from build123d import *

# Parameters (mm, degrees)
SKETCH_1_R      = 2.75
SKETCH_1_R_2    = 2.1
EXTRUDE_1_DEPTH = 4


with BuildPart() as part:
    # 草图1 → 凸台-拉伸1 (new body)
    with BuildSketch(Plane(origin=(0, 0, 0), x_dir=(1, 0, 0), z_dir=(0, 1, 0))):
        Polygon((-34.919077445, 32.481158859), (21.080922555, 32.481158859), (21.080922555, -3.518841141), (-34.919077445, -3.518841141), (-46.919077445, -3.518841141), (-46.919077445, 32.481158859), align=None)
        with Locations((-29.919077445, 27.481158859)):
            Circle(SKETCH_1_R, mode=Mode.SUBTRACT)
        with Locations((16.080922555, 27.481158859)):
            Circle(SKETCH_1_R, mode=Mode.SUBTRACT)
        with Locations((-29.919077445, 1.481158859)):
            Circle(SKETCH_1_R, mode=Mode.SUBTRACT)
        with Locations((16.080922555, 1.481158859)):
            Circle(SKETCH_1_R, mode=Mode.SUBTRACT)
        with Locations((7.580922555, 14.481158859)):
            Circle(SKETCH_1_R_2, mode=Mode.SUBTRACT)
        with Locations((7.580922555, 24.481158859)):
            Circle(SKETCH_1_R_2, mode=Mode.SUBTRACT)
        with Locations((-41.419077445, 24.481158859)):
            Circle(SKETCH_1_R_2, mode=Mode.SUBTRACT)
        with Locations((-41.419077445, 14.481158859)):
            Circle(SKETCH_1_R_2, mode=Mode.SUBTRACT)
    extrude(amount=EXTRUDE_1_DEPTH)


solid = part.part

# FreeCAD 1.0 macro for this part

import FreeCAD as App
import Part
import Sketcher
from FreeCAD import Vector
Q = App.Units.Quantity


def add_polygon(sketch, points):
    """Adds a closed chain of lines whose ends are joined by coincident constraints."""
    first, n = sketch.GeometryCount, len(points)
    for a, b in zip(points, points[1:] + points[:1]):
        sketch.addGeometry(Part.LineSegment(App.Vector(*a, 0), App.Vector(*b, 0)), False)
    for i in range(n):
        sketch.addConstraint(Sketcher.Constraint("Coincident", first + i, 2, first + (i + 1) % n, 1))

doc = App.newDocument("Part")
body = doc.addObject("PartDesign::Body", "Body")

# Sketch on XZ plane
sketch1 = doc.addObject("Sketcher::SketchObject", "Sketch")
body.addObject(sketch1)
sketch1.AttachmentSupport = (doc.XZ_Plane, [""])
sketch1.MapMode = "FlatFace"
add_polygon(sketch1, [(21.080923, -32.481159), (-46.919077, -32.481159), (-46.919077, 3.518841), (21.080923, 3.518841)])  # lines 0-3
sketch1.addGeometry(Part.Circle(Vector(16.080923, -1.481159, 0), Vector(0, 0, 1), 2.75), False)  # 4
sketch1.addGeometry(Part.Circle(Vector(-29.919077, -1.481159, 0), Vector(0, 0, 1), 2.75), False)  # 5
sketch1.addGeometry(Part.Circle(Vector(7.580923, -14.481159, 0), Vector(0, 0, 1), 2.1), False)  # 6
sketch1.addGeometry(Part.Circle(Vector(7.580923, -24.481159, 0), Vector(0, 0, 1), 2.1), False)  # 7
sketch1.addGeometry(Part.Circle(Vector(16.080923, -27.481159, 0), Vector(0, 0, 1), 2.75), False)  # 8
sketch1.addGeometry(Part.Circle(Vector(-41.419077, -14.481159, 0), Vector(0, 0, 1), 2.1), False)  # 9
sketch1.addGeometry(Part.Circle(Vector(-41.419077, -24.481159, 0), Vector(0, 0, 1), 2.1), False)  # 10
sketch1.addGeometry(Part.Circle(Vector(-29.919077, -27.481159, 0), Vector(0, 0, 1), 2.75), False)  # 11
sketch1.addConstraint([
    Sketcher.Constraint("Horizontal", 0),
    Sketcher.Constraint("Vertical", 1),
    Sketcher.Constraint("Horizontal", 2),
    Sketcher.Constraint("Vertical", 3),
    Sketcher.Constraint("Equal", 4, 5),
    Sketcher.Constraint("Equal", 6, 7),
    Sketcher.Constraint("Equal", 5, 8),
    Sketcher.Constraint("Equal", 7, 9),
    Sketcher.Constraint("Equal", 9, 10),
    Sketcher.Constraint("Equal", 8, 11),
    Sketcher.Constraint("Horizontal", 4, 3, 5, 3),
    Sketcher.Constraint("Horizontal", 6, 3, 9, 3),
    Sketcher.Constraint("Horizontal", 7, 3, 10, 3),
    Sketcher.Constraint("Horizontal", 8, 3, 11, 3),
    Sketcher.Constraint("Vertical", 6, 3, 7, 3),
    Sketcher.Constraint("Vertical", 4, 3, 8, 3),
    Sketcher.Constraint("Vertical", 9, 3, 10, 3),
    Sketcher.Constraint("Vertical", 5, 3, 11, 3),
    Sketcher.Constraint("Diameter", 4, Q("5.5 mm")),
    Sketcher.Constraint("Diameter", 6, Q("4.2 mm")),
    Sketcher.Constraint("DistanceX", 0, 2, 0, 1, Q("68 mm")),
    Sketcher.Constraint("DistanceY", 1, 1, 1, 2, Q("36 mm")),
    Sketcher.Constraint("DistanceX", 5, 3, 4, 3, Q("46 mm")),
    Sketcher.Constraint("DistanceY", 6, 3, 4, 3, Q("13 mm")),
    Sketcher.Constraint("DistanceY", 7, 3, 6, 3, Q("10 mm")),
    Sketcher.Constraint("DistanceY", 8, 3, 7, 3, Q("3 mm")),
    Sketcher.Constraint("DistanceX", 9, 3, 6, 3, Q("49 mm")),
    Sketcher.Constraint("DistanceY", 0, 2, 10, 3, Q("8 mm")),
    Sketcher.Constraint("DistanceX", 0, 2, 11, 3, Q("17 mm")),
    Sketcher.Constraint("DistanceX", 6, 3, 4, 3, Q("8.5 mm")),
    Sketcher.Constraint("DistanceY", 4, 3, -1, 1, Q("1.481159 mm")),
    Sketcher.Constraint("DistanceX", -1, 1, 4, 3, Q("16.080923 mm")),
])
pad1 = doc.addObject("PartDesign::Pad", "Pad")
body.addObject(pad1)
pad1.Profile = sketch1
pad1.Length = 4
pad1.Reversed = True

doc.recompute()
